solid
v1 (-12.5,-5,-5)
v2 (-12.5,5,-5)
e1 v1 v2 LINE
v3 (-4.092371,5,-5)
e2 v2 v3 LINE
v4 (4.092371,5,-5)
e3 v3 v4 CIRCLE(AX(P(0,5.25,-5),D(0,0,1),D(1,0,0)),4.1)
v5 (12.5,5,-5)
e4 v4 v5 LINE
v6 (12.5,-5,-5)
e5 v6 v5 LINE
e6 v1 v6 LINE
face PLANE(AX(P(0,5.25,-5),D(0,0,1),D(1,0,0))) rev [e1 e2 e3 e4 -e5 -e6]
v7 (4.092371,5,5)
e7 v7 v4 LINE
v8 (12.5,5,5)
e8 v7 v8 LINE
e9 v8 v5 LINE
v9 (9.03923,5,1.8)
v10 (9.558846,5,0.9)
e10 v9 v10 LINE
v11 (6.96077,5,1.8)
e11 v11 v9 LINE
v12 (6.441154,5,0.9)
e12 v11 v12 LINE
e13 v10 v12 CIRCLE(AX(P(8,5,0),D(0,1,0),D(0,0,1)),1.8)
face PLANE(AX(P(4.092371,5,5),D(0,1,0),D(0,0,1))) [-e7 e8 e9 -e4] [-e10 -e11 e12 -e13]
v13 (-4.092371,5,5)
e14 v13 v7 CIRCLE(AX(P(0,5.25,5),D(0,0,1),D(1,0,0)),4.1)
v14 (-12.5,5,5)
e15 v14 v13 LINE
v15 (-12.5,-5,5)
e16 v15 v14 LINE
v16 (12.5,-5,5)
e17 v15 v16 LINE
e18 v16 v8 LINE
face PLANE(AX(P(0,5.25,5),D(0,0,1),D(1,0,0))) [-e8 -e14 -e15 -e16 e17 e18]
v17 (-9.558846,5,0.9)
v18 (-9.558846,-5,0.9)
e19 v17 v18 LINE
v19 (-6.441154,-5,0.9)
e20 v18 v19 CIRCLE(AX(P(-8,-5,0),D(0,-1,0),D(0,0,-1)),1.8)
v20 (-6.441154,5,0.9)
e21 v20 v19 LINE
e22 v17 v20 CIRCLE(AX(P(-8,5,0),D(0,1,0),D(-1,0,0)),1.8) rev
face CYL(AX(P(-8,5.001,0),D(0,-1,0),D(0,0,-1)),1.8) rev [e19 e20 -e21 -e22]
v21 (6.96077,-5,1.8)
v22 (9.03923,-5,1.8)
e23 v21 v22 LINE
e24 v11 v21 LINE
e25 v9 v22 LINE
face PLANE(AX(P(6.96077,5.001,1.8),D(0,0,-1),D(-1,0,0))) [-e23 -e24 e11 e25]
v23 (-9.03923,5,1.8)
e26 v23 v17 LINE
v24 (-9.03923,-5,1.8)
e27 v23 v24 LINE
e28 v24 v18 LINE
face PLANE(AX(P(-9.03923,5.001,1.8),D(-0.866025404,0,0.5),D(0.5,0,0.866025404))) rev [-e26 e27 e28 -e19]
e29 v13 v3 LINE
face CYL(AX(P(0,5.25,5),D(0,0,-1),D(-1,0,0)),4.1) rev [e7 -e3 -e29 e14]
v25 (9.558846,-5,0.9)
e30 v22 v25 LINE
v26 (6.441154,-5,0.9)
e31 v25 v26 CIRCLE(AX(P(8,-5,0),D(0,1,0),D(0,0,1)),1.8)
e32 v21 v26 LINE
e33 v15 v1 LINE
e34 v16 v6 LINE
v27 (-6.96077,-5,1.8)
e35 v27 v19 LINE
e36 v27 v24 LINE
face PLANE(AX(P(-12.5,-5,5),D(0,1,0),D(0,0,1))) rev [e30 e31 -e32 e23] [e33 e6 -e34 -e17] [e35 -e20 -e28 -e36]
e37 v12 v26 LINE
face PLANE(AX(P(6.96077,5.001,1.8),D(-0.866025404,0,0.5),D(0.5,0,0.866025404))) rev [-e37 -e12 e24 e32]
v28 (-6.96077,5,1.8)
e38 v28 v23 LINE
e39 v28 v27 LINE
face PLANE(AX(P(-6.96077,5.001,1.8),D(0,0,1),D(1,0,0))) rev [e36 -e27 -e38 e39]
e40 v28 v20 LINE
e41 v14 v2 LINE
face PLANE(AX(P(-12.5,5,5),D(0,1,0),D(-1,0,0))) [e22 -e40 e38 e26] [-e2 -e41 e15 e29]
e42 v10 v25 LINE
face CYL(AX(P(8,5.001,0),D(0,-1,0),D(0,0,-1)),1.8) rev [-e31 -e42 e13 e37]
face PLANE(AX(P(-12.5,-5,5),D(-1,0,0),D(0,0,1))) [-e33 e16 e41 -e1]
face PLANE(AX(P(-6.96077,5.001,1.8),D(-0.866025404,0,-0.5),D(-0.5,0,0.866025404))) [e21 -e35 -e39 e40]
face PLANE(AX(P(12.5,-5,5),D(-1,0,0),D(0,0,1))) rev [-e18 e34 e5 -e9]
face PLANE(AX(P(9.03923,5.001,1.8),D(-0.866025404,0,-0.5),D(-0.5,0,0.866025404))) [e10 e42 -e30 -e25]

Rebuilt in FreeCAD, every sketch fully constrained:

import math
import FreeCAD as App
import Part
import Sketcher
from FreeCAD import Vector
Q = App.Units.Quantity

doc = App.newDocument("Part")
body = doc.addObject("PartDesign::Body", "Body")

sketch1 = doc.addObject("Sketcher::SketchObject", "Sketch")
body.addObject(sketch1)
sketch1.AttachmentSupport = (doc.XY_Plane, [""])
sketch1.MapMode = "FlatFace"
sketch1.addGeometry(Part.LineSegment(Vector(-12.5, -5, 0), Vector(12.5, -5, 0)), False)
sketch1.addGeometry(Part.LineSegment(Vector(12.5, -5, 0), Vector(12.5, 5, 0)), False)
sketch1.addGeometry(Part.LineSegment(Vector(12.5, 5, 0), Vector(4.1, 5, 0)), False)
sketch1.addGeometry(Part.ArcOfCircle(Part.Circle(Vector(0, 5.2, 0), Vector(0, 0, 1), 4.1), math.radians(-177), math.radians(-3)), False)
sketch1.addGeometry(Part.LineSegment(Vector(-4.1, 5, 0), Vector(-12.5, 5, 0)), False)
sketch1.addGeometry(Part.LineSegment(Vector(-12.5, 5, 0), Vector(-12.5, -5, 0)), False)
sketch1.addConstraint(Sketcher.Constraint("Coincident", 0, 2, 1, 1))
sketch1.addConstraint(Sketcher.Constraint("Coincident", 1, 2, 2, 1))
sketch1.addConstraint(Sketcher.Constraint("Coincident", 2, 2, 3, 2))
sketch1.addConstraint(Sketcher.Constraint("Coincident", 3, 1, 4, 1))
sketch1.addConstraint(Sketcher.Constraint("Coincident", 4, 2, 5, 1))
sketch1.addConstraint(Sketcher.Constraint("Coincident", 5, 2, 0, 1))
sketch1.addConstraint(Sketcher.Constraint("Horizontal", 0))
sketch1.addConstraint(Sketcher.Constraint("Vertical", 1))
sketch1.addConstraint(Sketcher.Constraint("Horizontal", 2))
sketch1.addConstraint(Sketcher.Constraint("Horizontal", 4))
sketch1.addConstraint(Sketcher.Constraint("Vertical", 5))
sketch1.addConstraint(Sketcher.Constraint("Symmetric", 0, 2, 4, 2, -1, 1))
sketch1.addConstraint(Sketcher.Constraint("Symmetric", 2, 2, 3, 1, -2))
sketch1.addConstraint(Sketcher.Constraint("Radius", 3, 4.1))
sketch1.addConstraint(Sketcher.Constraint("DistanceX", 0, 1, 0, 2, 25.0))
sketch1.addConstraint(Sketcher.Constraint("DistanceY", 1, 1, 1, 2, 10.0))
sketch1.addConstraint(Sketcher.Constraint("DistanceY", -1, 1, 3, 3, 5.25))
pad1 = doc.addObject("PartDesign::Pad", "Pad")
body.addObject(pad1)
pad1.Profile = sketch1
pad1.Length = 10
pad1.Midplane = True

sketch2 = doc.addObject("Sketcher::SketchObject", "Sketch001")
body.addObject(sketch2)
sketch2.AttachmentSupport = (doc.XZ_Plane, [""])
sketch2.MapMode = "FlatFace"
sketch2.AttachmentOffset = App.Placement(Vector(0, 0, 5), App.Rotation())
sketch2.addGeometry(Part.LineSegment(Vector(-6.4, 0.9, 0), Vector(-7, 1.8, 0)), False)
sketch2.addGeometry(Part.LineSegment(Vector(-7, 1.8, 0), Vector(-9, 1.8, 0)), False)
sketch2.addGeometry(Part.LineSegment(Vector(-9, 1.8, 0), Vector(-9.6, 0.9, 0)), False)
sketch2.addGeometry(Part.ArcOfCircle(Part.Circle(Vector(-8, 0, 0), Vector(0, 0, 1), 1.8), math.radians(150), math.radians(390)), False)
sketch2.addConstraint(Sketcher.Constraint("Coincident", 0, 2, 1, 1))
sketch2.addConstraint(Sketcher.Constraint("Coincident", 1, 2, 2, 1))
sketch2.addConstraint(Sketcher.Constraint("Tangent", 2, 2, 3, 1))
sketch2.addConstraint(Sketcher.Constraint("Tangent", 3, 2, 0, 1))
sketch2.addConstraint(Sketcher.Constraint("Horizontal", 1))
sketch2.addConstraint(Sketcher.Constraint("PointOnObject", 3, 3, -1))
sketch2.addConstraint(Sketcher.Constraint("Horizontal", 2, 2, 3, 2))
sketch2.addConstraint(Sketcher.Constraint("Radius", 3, 1.8))
sketch2.addConstraint(Sketcher.Constraint("Angle", 0, Q("120 deg")))
sketch2.addConstraint(Sketcher.Constraint("DistanceX", 3, 3, -1, 1, 8.0))
sketch2.addConstraint(Sketcher.Constraint("DistanceY", -1, 1, 0, 2, 1.8))
pocket1 = doc.addObject("PartDesign::Pocket", "Pocket")
body.addObject(pocket1)
pocket1.Profile = sketch2
pocket1.Type = "UpToFirst"

sketch3 = doc.addObject("Sketcher::SketchObject", "Sketch002")
body.addObject(sketch3)
sketch3.AttachmentSupport = (doc.XZ_Plane, [""])
sketch3.MapMode = "FlatFace"
sketch3.AttachmentOffset = App.Placement(Vector(0, 0, 5), App.Rotation())
sketch3.addGeometry(Part.LineSegment(Vector(9, 1.8, 0), Vector(7, 1.8, 0)), False)
sketch3.addGeometry(Part.LineSegment(Vector(7, 1.8, 0), Vector(6.4, 0.9, 0)), False)
sketch3.addGeometry(Part.ArcOfCircle(Part.Circle(Vector(8, 0, 0), Vector(0, 0, 1), 1.8), math.radians(150), math.radians(390)), False)
sketch3.addGeometry(Part.LineSegment(Vector(9.6, 0.9, 0), Vector(9, 1.8, 0)), False)
sketch3.addConstraint(Sketcher.Constraint("Coincident", 0, 2, 1, 1))
sketch3.addConstraint(Sketcher.Constraint("Tangent", 1, 2, 2, 1))
sketch3.addConstraint(Sketcher.Constraint("Tangent", 2, 2, 3, 1))
sketch3.addConstraint(Sketcher.Constraint("Coincident", 3, 2, 0, 1))
sketch3.addConstraint(Sketcher.Constraint("Horizontal", 0))
sketch3.addConstraint(Sketcher.Constraint("PointOnObject", 2, 3, -1))
sketch3.addConstraint(Sketcher.Constraint("Horizontal", 1, 2, 2, 2))
sketch3.addConstraint(Sketcher.Constraint("Radius", 2, 1.8))
sketch3.addConstraint(Sketcher.Constraint("Angle", 1, Q("-120 deg")))
sketch3.addConstraint(Sketcher.Constraint("DistanceX", -1, 1, 2, 3, 8.0))
sketch3.addConstraint(Sketcher.Constraint("DistanceY", -1, 1, 0, 2, 1.8))
pocket2 = doc.addObject("PartDesign::Pocket", "Pocket001")
body.addObject(pocket2)
pocket2.Profile = sketch3
pocket2.Type = "UpToFirst"

doc.recompute()
